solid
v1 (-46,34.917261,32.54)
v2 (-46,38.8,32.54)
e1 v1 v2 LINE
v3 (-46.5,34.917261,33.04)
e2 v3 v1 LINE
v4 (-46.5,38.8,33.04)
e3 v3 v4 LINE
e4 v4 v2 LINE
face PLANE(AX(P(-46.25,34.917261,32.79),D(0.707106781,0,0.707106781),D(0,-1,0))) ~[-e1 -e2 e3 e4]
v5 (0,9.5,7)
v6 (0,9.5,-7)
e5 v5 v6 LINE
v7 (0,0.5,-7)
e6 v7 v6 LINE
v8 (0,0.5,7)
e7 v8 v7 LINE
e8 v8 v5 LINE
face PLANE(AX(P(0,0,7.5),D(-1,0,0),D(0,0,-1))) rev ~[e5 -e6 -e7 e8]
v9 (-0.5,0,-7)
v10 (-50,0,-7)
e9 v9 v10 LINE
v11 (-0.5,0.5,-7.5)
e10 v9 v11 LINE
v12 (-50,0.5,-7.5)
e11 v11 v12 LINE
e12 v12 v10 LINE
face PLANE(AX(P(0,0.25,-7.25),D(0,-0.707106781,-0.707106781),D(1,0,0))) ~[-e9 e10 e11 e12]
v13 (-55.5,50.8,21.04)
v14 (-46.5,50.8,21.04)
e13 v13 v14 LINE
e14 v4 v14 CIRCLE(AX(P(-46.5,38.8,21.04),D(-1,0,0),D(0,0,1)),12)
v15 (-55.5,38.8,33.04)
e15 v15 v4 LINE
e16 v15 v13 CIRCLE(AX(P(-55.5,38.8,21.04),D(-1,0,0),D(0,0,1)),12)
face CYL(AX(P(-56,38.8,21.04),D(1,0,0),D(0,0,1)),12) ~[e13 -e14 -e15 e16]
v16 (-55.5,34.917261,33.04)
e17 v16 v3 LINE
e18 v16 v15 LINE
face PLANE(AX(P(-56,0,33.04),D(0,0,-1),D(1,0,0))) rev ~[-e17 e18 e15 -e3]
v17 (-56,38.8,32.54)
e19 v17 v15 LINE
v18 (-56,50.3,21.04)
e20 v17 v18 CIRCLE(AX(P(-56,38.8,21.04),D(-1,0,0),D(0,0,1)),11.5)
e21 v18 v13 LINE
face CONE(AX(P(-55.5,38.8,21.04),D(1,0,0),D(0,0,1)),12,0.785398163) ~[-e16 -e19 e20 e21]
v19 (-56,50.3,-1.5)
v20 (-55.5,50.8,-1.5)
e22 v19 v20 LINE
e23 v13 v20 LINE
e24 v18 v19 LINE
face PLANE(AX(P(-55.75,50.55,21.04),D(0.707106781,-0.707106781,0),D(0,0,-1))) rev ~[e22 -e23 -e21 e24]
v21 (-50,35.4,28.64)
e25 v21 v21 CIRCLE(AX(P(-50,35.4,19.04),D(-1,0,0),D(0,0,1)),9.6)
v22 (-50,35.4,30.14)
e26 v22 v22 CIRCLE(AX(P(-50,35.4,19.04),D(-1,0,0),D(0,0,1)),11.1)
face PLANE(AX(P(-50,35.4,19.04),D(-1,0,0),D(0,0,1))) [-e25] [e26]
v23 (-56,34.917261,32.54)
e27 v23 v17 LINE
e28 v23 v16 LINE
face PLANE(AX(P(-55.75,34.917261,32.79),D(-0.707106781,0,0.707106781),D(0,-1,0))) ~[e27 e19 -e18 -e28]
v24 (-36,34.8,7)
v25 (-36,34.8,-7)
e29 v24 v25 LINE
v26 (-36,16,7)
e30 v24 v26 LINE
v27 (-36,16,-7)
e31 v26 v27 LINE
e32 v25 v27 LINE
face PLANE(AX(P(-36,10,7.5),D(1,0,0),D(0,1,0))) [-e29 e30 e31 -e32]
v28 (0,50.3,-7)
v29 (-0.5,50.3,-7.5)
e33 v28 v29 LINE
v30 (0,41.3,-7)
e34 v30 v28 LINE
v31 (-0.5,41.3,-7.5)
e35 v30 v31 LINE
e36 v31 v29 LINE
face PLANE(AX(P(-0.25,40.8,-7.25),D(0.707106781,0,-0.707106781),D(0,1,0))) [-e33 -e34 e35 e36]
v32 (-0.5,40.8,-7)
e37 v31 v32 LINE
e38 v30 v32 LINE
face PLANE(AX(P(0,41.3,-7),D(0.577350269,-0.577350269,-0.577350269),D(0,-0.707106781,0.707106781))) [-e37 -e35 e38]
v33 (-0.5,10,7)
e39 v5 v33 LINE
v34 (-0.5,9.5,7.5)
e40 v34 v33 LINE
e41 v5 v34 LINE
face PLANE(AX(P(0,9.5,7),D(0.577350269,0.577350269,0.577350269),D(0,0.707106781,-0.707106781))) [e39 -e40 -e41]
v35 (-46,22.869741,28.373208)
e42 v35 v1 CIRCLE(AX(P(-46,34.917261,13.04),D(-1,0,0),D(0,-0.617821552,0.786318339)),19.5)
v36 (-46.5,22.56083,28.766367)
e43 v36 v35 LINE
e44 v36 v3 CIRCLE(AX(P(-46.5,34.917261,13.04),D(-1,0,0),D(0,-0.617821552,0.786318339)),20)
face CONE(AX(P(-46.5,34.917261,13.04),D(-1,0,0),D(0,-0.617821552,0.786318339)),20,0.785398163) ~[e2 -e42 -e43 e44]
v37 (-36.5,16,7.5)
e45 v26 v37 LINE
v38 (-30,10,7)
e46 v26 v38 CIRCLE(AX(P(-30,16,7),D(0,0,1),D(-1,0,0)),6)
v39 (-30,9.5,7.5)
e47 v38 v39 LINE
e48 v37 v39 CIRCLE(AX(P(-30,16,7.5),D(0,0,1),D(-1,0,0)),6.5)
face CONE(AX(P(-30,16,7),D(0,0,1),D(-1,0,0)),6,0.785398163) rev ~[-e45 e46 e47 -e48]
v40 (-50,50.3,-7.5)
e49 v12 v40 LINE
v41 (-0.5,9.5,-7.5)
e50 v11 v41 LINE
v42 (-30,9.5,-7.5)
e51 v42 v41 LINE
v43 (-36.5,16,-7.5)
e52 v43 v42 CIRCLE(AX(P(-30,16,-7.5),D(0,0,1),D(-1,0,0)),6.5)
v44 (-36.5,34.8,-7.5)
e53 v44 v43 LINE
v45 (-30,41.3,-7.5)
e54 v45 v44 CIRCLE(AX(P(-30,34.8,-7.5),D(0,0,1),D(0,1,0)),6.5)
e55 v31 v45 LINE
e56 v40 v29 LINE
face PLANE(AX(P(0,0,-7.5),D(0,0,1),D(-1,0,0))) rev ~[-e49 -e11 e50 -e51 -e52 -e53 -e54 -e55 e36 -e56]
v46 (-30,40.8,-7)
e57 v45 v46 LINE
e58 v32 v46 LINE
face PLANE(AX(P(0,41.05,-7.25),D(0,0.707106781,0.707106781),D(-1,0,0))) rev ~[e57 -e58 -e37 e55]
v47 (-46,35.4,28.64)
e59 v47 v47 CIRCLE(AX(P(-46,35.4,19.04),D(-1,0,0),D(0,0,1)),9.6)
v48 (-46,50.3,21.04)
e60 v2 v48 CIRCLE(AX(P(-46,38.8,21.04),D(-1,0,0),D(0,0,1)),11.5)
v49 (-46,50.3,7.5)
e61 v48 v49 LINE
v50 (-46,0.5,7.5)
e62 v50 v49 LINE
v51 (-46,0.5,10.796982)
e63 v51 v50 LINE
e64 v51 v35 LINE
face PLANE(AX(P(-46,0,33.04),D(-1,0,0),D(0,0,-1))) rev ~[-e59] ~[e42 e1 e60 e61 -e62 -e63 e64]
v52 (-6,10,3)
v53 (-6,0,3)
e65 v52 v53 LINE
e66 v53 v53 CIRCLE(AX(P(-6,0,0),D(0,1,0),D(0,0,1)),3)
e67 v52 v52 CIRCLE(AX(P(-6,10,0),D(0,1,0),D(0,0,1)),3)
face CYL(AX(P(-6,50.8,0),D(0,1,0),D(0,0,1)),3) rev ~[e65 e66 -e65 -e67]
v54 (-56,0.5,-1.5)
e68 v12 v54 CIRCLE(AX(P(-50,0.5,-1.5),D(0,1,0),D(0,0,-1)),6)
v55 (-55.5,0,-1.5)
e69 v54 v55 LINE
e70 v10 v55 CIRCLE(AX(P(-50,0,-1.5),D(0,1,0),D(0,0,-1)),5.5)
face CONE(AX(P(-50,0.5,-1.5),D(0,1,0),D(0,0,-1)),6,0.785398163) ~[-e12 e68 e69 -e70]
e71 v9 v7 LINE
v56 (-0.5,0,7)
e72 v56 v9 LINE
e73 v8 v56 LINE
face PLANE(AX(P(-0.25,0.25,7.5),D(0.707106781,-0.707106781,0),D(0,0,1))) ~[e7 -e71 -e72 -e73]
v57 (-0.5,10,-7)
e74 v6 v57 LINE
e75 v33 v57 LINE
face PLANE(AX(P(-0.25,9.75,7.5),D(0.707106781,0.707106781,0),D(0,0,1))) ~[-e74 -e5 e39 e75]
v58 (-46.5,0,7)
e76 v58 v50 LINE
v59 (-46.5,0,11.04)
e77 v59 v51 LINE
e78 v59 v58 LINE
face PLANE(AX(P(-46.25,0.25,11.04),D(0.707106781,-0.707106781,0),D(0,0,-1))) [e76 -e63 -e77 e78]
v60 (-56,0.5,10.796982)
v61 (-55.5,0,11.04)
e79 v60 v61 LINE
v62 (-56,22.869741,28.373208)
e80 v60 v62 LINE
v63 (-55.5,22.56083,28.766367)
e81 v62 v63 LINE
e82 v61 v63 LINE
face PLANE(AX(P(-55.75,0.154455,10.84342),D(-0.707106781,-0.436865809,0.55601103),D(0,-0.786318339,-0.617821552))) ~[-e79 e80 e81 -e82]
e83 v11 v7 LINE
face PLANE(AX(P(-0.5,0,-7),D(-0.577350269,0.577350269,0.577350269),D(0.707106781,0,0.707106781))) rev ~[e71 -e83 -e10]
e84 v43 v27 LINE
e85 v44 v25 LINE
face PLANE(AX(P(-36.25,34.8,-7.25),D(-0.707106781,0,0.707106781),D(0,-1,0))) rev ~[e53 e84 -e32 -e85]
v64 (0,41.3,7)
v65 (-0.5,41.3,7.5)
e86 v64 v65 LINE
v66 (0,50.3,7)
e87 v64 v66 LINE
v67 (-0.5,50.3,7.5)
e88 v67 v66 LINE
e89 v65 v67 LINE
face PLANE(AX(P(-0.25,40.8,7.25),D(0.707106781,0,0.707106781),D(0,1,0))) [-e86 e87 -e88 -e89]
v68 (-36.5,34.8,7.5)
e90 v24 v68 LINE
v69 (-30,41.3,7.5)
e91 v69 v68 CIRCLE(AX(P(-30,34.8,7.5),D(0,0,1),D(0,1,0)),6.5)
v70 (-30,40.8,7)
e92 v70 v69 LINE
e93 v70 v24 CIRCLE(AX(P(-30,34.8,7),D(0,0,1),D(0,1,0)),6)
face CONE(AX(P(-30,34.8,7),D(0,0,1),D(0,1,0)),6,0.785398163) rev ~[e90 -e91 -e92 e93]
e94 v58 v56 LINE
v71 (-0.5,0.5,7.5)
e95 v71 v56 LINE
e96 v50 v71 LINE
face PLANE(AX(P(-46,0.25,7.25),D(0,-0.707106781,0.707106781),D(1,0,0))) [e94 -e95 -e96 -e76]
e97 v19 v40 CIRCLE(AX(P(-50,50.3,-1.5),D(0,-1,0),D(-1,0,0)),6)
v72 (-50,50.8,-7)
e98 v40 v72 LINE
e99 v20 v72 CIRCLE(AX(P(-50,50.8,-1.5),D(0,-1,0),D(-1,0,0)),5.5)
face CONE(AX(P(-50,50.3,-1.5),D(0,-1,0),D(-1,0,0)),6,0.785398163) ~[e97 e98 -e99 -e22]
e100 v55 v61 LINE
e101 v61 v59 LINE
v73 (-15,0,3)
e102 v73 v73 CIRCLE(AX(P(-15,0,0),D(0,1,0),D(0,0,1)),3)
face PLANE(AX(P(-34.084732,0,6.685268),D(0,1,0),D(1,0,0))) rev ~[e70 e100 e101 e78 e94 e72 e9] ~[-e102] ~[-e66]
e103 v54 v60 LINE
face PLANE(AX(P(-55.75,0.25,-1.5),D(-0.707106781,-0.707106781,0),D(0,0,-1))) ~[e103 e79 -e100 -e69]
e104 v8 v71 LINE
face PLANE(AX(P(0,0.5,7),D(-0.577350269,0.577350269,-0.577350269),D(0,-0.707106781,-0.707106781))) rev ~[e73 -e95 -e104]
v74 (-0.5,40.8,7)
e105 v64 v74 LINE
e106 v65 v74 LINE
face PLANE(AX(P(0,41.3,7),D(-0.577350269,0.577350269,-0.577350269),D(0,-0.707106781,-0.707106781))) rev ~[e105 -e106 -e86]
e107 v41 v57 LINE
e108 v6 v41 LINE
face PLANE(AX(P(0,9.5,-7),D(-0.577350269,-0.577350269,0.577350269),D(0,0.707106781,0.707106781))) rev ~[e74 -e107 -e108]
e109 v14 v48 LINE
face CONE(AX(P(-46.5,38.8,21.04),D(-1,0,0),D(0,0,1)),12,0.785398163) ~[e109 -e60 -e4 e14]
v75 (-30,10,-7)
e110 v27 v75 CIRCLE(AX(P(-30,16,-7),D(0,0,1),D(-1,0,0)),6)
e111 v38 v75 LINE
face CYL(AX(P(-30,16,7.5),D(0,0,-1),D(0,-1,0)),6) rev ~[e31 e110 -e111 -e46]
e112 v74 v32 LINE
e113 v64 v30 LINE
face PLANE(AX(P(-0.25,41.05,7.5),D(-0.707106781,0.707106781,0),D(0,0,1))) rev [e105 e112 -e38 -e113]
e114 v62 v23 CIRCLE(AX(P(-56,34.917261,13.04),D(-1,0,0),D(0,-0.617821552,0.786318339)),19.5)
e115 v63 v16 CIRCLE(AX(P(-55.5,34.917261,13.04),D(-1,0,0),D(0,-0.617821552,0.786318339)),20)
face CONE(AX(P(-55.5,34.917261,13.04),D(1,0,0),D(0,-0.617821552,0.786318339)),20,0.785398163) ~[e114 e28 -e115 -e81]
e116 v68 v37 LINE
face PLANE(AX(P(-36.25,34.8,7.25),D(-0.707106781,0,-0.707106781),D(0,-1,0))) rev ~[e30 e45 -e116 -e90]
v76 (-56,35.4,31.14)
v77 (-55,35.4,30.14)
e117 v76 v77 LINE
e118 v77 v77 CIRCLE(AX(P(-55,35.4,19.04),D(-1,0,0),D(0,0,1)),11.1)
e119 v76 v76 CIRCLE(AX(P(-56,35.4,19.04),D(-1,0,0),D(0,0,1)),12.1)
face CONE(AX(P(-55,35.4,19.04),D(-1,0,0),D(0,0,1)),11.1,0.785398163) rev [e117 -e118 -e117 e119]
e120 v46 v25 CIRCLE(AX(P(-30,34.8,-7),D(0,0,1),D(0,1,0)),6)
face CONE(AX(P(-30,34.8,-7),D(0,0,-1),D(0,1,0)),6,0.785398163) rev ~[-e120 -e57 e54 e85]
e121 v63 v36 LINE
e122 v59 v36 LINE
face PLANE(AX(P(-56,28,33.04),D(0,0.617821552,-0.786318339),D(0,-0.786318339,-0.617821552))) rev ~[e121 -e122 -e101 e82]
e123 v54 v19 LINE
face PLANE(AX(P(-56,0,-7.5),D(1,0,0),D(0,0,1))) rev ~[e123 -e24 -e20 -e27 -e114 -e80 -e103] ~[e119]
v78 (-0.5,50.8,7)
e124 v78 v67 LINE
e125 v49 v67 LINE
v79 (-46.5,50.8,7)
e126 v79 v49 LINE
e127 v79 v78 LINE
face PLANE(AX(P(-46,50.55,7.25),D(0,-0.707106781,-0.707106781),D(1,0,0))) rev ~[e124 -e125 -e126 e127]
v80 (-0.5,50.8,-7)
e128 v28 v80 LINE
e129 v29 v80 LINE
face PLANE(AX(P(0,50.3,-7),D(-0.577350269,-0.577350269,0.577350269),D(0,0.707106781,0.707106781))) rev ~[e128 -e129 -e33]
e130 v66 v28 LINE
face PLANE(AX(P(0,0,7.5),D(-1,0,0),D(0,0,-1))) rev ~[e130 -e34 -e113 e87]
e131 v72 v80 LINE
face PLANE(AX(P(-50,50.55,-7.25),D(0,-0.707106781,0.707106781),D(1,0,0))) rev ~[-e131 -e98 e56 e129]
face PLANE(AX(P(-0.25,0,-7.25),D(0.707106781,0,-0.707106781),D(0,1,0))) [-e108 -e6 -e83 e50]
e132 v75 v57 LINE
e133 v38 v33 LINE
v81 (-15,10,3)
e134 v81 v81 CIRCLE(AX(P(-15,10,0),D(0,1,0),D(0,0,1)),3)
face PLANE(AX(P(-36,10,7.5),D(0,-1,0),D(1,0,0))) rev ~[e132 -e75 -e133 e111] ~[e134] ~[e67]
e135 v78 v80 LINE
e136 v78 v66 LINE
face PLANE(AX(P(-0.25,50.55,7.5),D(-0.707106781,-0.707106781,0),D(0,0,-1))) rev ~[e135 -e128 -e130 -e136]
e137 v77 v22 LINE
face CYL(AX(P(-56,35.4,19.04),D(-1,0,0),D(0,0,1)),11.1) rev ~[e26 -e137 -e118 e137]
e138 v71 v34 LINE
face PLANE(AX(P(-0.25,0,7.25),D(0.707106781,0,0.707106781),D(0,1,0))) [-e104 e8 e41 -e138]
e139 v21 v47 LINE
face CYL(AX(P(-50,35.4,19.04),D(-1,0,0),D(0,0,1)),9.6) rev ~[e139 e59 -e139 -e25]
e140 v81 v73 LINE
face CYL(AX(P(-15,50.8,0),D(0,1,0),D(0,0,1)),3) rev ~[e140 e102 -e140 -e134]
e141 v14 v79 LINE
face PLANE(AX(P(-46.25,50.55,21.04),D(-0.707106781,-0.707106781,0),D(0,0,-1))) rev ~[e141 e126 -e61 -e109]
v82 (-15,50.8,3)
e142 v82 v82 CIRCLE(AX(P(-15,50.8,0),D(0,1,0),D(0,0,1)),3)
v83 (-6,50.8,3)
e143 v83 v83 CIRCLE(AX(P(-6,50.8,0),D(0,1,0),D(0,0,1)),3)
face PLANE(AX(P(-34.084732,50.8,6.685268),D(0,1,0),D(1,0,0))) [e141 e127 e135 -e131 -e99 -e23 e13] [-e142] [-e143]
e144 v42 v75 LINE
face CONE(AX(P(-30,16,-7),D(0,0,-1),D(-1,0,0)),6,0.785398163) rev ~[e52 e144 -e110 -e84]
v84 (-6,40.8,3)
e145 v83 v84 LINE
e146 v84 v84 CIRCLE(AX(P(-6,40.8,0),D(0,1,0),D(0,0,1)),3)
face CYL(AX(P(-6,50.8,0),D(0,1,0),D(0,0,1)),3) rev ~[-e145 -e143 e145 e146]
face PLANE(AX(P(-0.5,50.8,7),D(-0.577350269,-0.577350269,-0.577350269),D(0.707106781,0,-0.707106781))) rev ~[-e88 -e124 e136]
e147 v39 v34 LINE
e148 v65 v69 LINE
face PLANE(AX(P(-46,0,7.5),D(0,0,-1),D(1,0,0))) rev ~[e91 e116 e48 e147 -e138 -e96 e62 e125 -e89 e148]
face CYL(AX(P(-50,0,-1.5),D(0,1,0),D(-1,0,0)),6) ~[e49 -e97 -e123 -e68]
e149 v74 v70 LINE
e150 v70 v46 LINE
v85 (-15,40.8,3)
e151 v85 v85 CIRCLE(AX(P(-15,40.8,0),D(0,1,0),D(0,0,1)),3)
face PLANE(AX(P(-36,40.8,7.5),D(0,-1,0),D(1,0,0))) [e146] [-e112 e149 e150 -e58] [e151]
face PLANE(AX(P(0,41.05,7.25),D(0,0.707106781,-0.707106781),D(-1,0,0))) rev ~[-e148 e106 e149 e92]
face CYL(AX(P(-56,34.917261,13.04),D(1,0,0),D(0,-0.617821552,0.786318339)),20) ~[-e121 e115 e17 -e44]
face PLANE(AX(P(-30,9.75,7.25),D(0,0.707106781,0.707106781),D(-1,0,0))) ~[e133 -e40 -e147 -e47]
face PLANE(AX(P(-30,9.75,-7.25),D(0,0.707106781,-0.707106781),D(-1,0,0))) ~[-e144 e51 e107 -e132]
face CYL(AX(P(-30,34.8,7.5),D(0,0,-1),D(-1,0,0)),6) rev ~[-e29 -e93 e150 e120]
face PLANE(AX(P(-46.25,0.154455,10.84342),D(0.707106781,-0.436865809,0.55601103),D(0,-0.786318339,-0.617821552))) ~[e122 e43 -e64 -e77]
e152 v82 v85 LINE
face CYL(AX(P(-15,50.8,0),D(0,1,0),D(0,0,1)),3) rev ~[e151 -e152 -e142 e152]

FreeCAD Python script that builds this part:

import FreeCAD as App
import Part
import Sketcher
from FreeCAD import Vector


def edges_at(feature, points):
    """Names of the edges that pass closest to the given points."""
    edges = feature.Shape.Edges
    near = lambda p: min(range(len(edges)), key=lambda i: edges[i].distToShape(Part.Vertex(*p))[0])
    return sorted({f"Edge{near(p) + 1}" for p in points})

doc = App.newDocument("Part")
body = doc.addObject("PartDesign::Body", "Body")

sketch1 = doc.addObject("Sketcher::SketchObject", "Sketch")
body.addObject(sketch1)
sketch1.AttachmentSupport = (doc.XZ_Plane, [""])
sketch1.MapMode = "FlatFace"
sketch1.addGeometry([
    Part.LineSegment(Vector(-56, -8, 0), Vector(-56, 33, 0)),
    Part.LineSegment(Vector(-56, 33, 0), Vector(-46, 33, 0)),
    Part.LineSegment(Vector(-46, 33, 0), Vector(-46, 8, 0)),
    Part.LineSegment(Vector(-46, 8, 0), Vector(0, 8, 0)),
    Part.LineSegment(Vector(0, 8, 0), Vector(0, -8, 0)),
    Part.LineSegment(Vector(0, -8, 0), Vector(-56, -8, 0)),
], False)
sketch1.addConstraint([
    Sketcher.Constraint("Coincident", 0, 2, 1, 1),
    Sketcher.Constraint("Coincident", 1, 2, 2, 1),
    Sketcher.Constraint("Coincident", 2, 2, 3, 1),
    Sketcher.Constraint("Coincident", 3, 2, 4, 1),
    Sketcher.Constraint("Coincident", 4, 2, 5, 1),
    Sketcher.Constraint("Coincident", 5, 2, 0, 1),
    Sketcher.Constraint("Vertical", 0),
    Sketcher.Constraint("Horizontal", 1),
    Sketcher.Constraint("Vertical", 2),
    Sketcher.Constraint("Horizontal", 3),
    Sketcher.Constraint("Vertical", 4),
    Sketcher.Constraint("Horizontal", 5),
    Sketcher.Constraint("Symmetric", 3, 2, 4, 2, -1, 1),
    Sketcher.Constraint("DistanceX", 1, 1, 1, 2, 10.0),
    Sketcher.Constraint("DistanceX", 3, 1, 3, 2, 46.0),
    Sketcher.Constraint("DistanceY", 4, 2, 4, 1, 15.0),
    Sketcher.Constraint("DistanceY", 0, 1, 0, 2, 40.54),
])
pad1 = doc.addObject("PartDesign::Pad", "Pad")
body.addObject(pad1)
pad1.Profile = sketch1
pad1.Length = 50.8
pad1.Reversed = True

sketch2 = doc.addObject("Sketcher::SketchObject", "Sketch001")
body.addObject(sketch2)
sketch2.AttachmentSupport = (doc.YZ_Plane, [""])
sketch2.MapMode = "FlatFace"
sketch2.AttachmentOffset = App.Placement(Vector(0, 0, -56), App.Rotation())
sketch2.addGeometry(Part.Circle(Vector(35, 19, 0), Vector(0, 0, 1), 11), False)
sketch2.addConstraint([
    Sketcher.Constraint("Diameter", 0, 22.2),
    Sketcher.Constraint("DistanceX", -1, 1, 0, 3, 35.4),
    Sketcher.Constraint("DistanceY", -1, 1, 0, 3, 19.04),
])
pocket1 = doc.addObject("PartDesign::Pocket", "Pocket")
body.addObject(pocket1)
pocket1.Profile = sketch2
pocket1.Length = 6
pocket1.Reversed = True

sketch3 = doc.addObject("Sketcher::SketchObject", "Sketch002")
body.addObject(sketch3)
sketch3.AttachmentSupport = (doc.YZ_Plane, [""])
sketch3.MapMode = "FlatFace"
sketch3.AttachmentOffset = App.Placement(Vector(0, 0, -50), App.Rotation())
sketch3.addGeometry(Part.Circle(Vector(35, 19, 0), Vector(0, 0, 1), 10), False)
sketch3.addConstraint([
    Sketcher.Constraint("Diameter", 0, 19.2),
    Sketcher.Constraint("DistanceX", -1, 1, 0, 3, 35.4),
    Sketcher.Constraint("DistanceY", -1, 1, 0, 3, 19.04),
])
pocket2 = doc.addObject("PartDesign::Pocket", "Pocket001")
body.addObject(pocket2)
pocket2.Profile = sketch3
pocket2.Type = "ThroughAll"
pocket2.Reversed = True

sketch4 = doc.addObject("Sketcher::SketchObject", "Sketch003")
body.addObject(sketch4)
sketch4.AttachmentSupport = (doc.XZ_Plane, [""])
sketch4.MapMode = "FlatFace"
sketch4.AttachmentOffset = App.Placement(Vector(0, 0, -50.8), App.Rotation())
sketch4.addGeometry([
    Part.Circle(Vector(-6, 0, 0), Vector(0, 0, 1), 3),
    Part.Circle(Vector(-15, 0, 0), Vector(0, 0, 1), 3),
], False)
sketch4.addConstraint([
    Sketcher.Constraint("Equal", 0, 1),
    Sketcher.Constraint("PointOnObject", 0, 3, -1),
    Sketcher.Constraint("PointOnObject", 1, 3, -1),
    Sketcher.Constraint("Diameter", 0, 6.0),
    Sketcher.Constraint("DistanceX", 0, 3, -1, 1, 6.0),
    Sketcher.Constraint("DistanceX", 1, 3, -1, 1, 15.0),
])
pocket3 = doc.addObject("PartDesign::Pocket", "Pocket002")
body.addObject(pocket3)
pocket3.Profile = sketch4
pocket3.Type = "ThroughAll"
pocket3.Reversed = True

sketch5 = doc.addObject("Sketcher::SketchObject", "Sketch004")
body.addObject(sketch5)
sketch5.AttachmentSupport = (doc.YZ_Plane, [""])
sketch5.MapMode = "FlatFace"
sketch5.AttachmentOffset = App.Placement(Vector(0, 0, -56), App.Rotation())
sketch5.addGeometry([
    Part.LineSegment(Vector(0, 11, 0), Vector(0, 33, 0)),
    Part.LineSegment(Vector(0, 33, 0), Vector(28, 33, 0)),
    Part.LineSegment(Vector(28, 33, 0), Vector(0, 11, 0)),
], False)
sketch5.addConstraint([
    Sketcher.Constraint("Coincident", 0, 2, 1, 1),
    Sketcher.Constraint("Coincident", 1, 2, 2, 1),
    Sketcher.Constraint("Coincident", 2, 2, 0, 1),
    Sketcher.Constraint("Vertical", 0),
    Sketcher.Constraint("Horizontal", 1),
    Sketcher.Constraint("PointOnObject", 0, 2, -2),
    Sketcher.Constraint("DistanceX", 1, 1, 1, 2, 28.0),
    Sketcher.Constraint("DistanceY", 0, 1, 0, 2, 22.0),
    Sketcher.Constraint("DistanceY", -1, 1, 0, 2, 33.04),
])
pocket4 = doc.addObject("PartDesign::Pocket", "Pocket003")
body.addObject(pocket4)
pocket4.Profile = sketch5
pocket4.Type = "ThroughAll"
pocket4.Reversed = True
doc.recompute()

fillet = doc.addObject("PartDesign::Fillet", "Fillet")
body.addObject(fillet)
fillet.Base = (pocket4, edges_at(pocket4, [(-51, 28, 33.04)]))
fillet.Radius = 20
doc.recompute()

fillet2 = doc.addObject("PartDesign::Fillet", "Fillet001")
body.addObject(fillet2)
fillet2.Base = (fillet, edges_at(fillet, [(-51, 50.8, 33.04)]))
fillet2.Radius = 12

sketch6 = doc.addObject("Sketcher::SketchObject", "Sketch005")
body.addObject(sketch6)
sketch6.AttachmentSupport = (doc.XY_Plane, [""])
sketch6.MapMode = "FlatFace"
sketch6.AttachmentOffset = App.Placement(Vector(0, 0, 7.5), App.Rotation())
sketch6.addGeometry([
    Part.LineSegment(Vector(-36, 41, 0), Vector(-36, 10, 0)),
    Part.LineSegment(Vector(-36, 10, 0), Vector(0, 10, 0)),
    Part.LineSegment(Vector(0, 10, 0), Vector(0, 41, 0)),
    Part.LineSegment(Vector(0, 41, 0), Vector(-36, 41, 0)),
], False)
sketch6.addConstraint([
    Sketcher.Constraint("Coincident", 0, 2, 1, 1),
    Sketcher.Constraint("Coincident", 1, 2, 2, 1),
    Sketcher.Constraint("Coincident", 2, 2, 3, 1),
    Sketcher.Constraint("Coincident", 3, 2, 0, 1),
    Sketcher.Constraint("Vertical", 0),
    Sketcher.Constraint("Horizontal", 1),
    Sketcher.Constraint("Vertical", 2),
    Sketcher.Constraint("Horizontal", 3),
    Sketcher.Constraint("PointOnObject", 1, 2, -2),
    Sketcher.Constraint("DistanceX", 1, 1, 1, 2, 36.0),
    Sketcher.Constraint("DistanceY", 0, 2, 0, 1, 30.8),
    Sketcher.Constraint("DistanceY", -1, 1, 0, 2, 10.0),
])
pocket5 = doc.addObject("PartDesign::Pocket", "Pocket004")
body.addObject(pocket5)
pocket5.Profile = sketch6
pocket5.Type = "ThroughAll"
doc.recompute()

chamfer = doc.addObject("PartDesign::Chamfer", "Chamfer")
body.addObject(chamfer)
chamfer.Base = (pocket5, edges_at(pocket5, [(-56, 35.4, 7.94)]))
chamfer.Size = 1
doc.recompute()

fillet3 = doc.addObject("PartDesign::Fillet", "Fillet002")
body.addObject(fillet3)
fillet3.Base = (chamfer, edges_at(chamfer, [(-56, 25.4, -7.5)]))
fillet3.Radius = 6
doc.recompute()

fillet4 = doc.addObject("PartDesign::Fillet", "Fillet003")
body.addObject(fillet4)
fillet4.Base = (fillet3, edges_at(fillet3, [(-36, 40.8, 0), (-36, 10, 0)]))
fillet4.Radius = 6
doc.recompute()

chamfer2 = doc.addObject("PartDesign::Chamfer", "Chamfer001")
body.addObject(chamfer2)
chamfer2.Base = (fillet4, edges_at(fillet4, [
    (-54.243, 50.8, -5.743),
    (-15, 10, 7.5),
    (-15, 10, -7.5),
    (-36, 25.4, 7.5),
    (-36, 25.4, -7.5),
    (-34.243, 11.757, 7.5),
    (-34.243, 11.757, -7.5),
    (-34.243, 39.043, 7.5),
    (0, 45.8, 7.5),
    (-34.243, 39.043, -7.5),
    (0, 45.8, -7.5),
    (-46, 50.8, 14.27),
    (-23, 50.8, 7.5),
    (-46, 11.28, 19.903),
    (0, 50.8, 0),
    (-56, 11.28, 19.903),
    (-56, 28.38, 31.941),
    (-46, 28.38, 31.941),
    (-46, 36.859, 33.04),
    (-46, 47.285, 29.525),
    (-56, 36.859, 33.04),
    (-56, 47.285, 29.525),
    (-23, 0, 7.5),
    (-46, 0, 9.27),
    (0, 5, 7.5),
    (0, 5, -7.5),
    (0, 10, 0),
    (-15, 40.8, -7.5),
    (0, 40.8, 0),
    (-15, 40.8, 7.5),
    (-25, 0, -7.5),
    (0, 0, 0),
    (-25, 50.8, -7.5),
    (-56, 50.8, 9.77),
    (-56, 0, 4.77),
    (-54.243, 0, -5.743),
]))
chamfer2.Size = 0.5

doc.recompute()
